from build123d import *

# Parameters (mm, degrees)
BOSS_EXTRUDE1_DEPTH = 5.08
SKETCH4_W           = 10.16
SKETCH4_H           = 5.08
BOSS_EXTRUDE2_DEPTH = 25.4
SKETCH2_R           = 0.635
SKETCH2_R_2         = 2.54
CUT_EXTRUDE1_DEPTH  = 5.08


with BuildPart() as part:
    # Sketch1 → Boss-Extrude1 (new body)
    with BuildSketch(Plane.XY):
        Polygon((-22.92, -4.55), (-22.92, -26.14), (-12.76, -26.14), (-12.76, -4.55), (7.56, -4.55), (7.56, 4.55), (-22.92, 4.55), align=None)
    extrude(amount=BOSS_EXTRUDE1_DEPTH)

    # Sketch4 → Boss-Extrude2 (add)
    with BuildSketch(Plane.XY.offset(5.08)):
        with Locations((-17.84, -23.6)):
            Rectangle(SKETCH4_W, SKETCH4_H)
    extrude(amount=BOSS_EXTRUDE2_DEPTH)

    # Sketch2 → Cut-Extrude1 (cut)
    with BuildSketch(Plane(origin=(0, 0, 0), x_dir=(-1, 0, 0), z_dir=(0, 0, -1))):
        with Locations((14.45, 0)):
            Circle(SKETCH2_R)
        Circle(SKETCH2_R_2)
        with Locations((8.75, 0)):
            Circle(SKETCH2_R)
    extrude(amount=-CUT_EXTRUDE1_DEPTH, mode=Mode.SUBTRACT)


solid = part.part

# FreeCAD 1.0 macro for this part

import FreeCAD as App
import Part
import Sketcher
from FreeCAD import Vector
Q = App.Units.Quantity


def add_polygon(sketch, points):
    """Adds a closed chain of lines whose ends are joined by coincident constraints."""
    first, n = sketch.GeometryCount, len(points)
    for a, b in zip(points, points[1:] + points[:1]):
        sketch.addGeometry(Part.LineSegment(App.Vector(*a, 0), App.Vector(*b, 0)), False)
    for i in range(n):
        sketch.addConstraint(Sketcher.Constraint("Coincident", first + i, 2, first + (i + 1) % n, 1))

doc = App.newDocument("Part")
body = doc.addObject("PartDesign::Body", "Body")

sketch1 = body.newObject("Sketcher::SketchObject", "Sketch")
sketch1.AttachmentSupport = (doc.getObject("XY_Plane"), [""])
sketch1.MapMode = "FlatFace"
add_polygon(sketch1, [(-23, -26), (-13, -26), (-13, -5), (8, -5), (8, 5), (-23, 5)])
sketch1.addConstraint(Sketcher.Constraint("Horizontal", 0))
sketch1.addConstraint(Sketcher.Constraint("Vertical", 1))
sketch1.addConstraint(Sketcher.Constraint("Horizontal", 2))
sketch1.addConstraint(Sketcher.Constraint("Vertical", 3))
sketch1.addConstraint(Sketcher.Constraint("Horizontal", 4))
sketch1.addConstraint(Sketcher.Constraint("Vertical", 5))
sketch1.addConstraint(Sketcher.Constraint("DistanceX", 0, 1, 0, 2, Q("0.4 in")))
sketch1.addConstraint(Sketcher.Constraint("DistanceX", 2, 1, 2, 2, Q("0.8 in")))
sketch1.addConstraint(Sketcher.Constraint("DistanceY", 1, 1, 1, 2, Q("0.85 in")))
sketch1.addConstraint(Sketcher.Constraint("DistanceY", 3, 1, 3, 2, Q("9.1 mm")))
sketch1.addConstraint(Sketcher.Constraint("DistanceX", 0, 2, -1, 1, Q("12.76 mm")))
sketch1.addConstraint(Sketcher.Constraint("DistanceY", 0, 2, -1, 1, Q("26.14 mm")))
pad1 = body.newObject("PartDesign::Pad", "Pad")
pad1.Profile = sketch1
pad1.Length = Q("0.2 in")

sketch2 = body.newObject("Sketcher::SketchObject", "Sketch001")
sketch2.AttachmentSupport = (doc.getObject("XY_Plane"), [""])
sketch2.MapMode = "FlatFace"
sketch2.AttachmentOffset = App.Placement(Vector(0, 0, 0.2 * 25.4), App.Rotation())
add_polygon(sketch2, [(-23, -21), (-23, -26), (-13, -26), (-13, -21)])
sketch2.addConstraint(Sketcher.Constraint("Vertical", 0))
sketch2.addConstraint(Sketcher.Constraint("Horizontal", 1))
sketch2.addConstraint(Sketcher.Constraint("Vertical", 2))
sketch2.addConstraint(Sketcher.Constraint("Horizontal", 3))
sketch2.addConstraint(Sketcher.Constraint("DistanceX", 1, 1, 1, 2, Q("0.4 in")))
sketch2.addConstraint(Sketcher.Constraint("DistanceY", 0, 2, 0, 1, Q("0.2 in")))
sketch2.addConstraint(Sketcher.Constraint("DistanceX", 0, 2, -1, 1, Q("22.92 mm")))
sketch2.addConstraint(Sketcher.Constraint("DistanceY", 0, 2, -1, 1, Q("26.14 mm")))
pad2 = body.newObject("PartDesign::Pad", "Pad001")
pad2.Profile = sketch2
pad2.Length = Q("1 in")

sketch3 = body.newObject("Sketcher::SketchObject", "Sketch002")
sketch3.AttachmentSupport = (doc.getObject("XY_Plane"), [""])
sketch3.MapMode = "FlatFace"
sketch3.addGeometry(Part.Circle(Vector(-14.4, 0, 0), Vector(0, 0, 1), 0.6), False)
sketch3.addGeometry(Part.Circle(Vector(0, 0, 0), Vector(0, 0, 1), 2.5), False)
sketch3.addGeometry(Part.Circle(Vector(-8.8, 0, 0), Vector(0, 0, 1), 0.6), False)
sketch3.addConstraint(Sketcher.Constraint("Coincident", 1, 3, -1, 1))
sketch3.addConstraint(Sketcher.Constraint("Equal", 0, 2))
sketch3.addConstraint(Sketcher.Constraint("PointOnObject", 0, 3, -1))
sketch3.addConstraint(Sketcher.Constraint("PointOnObject", 2, 3, -1))
sketch3.addConstraint(Sketcher.Constraint("Diameter", 1, Q("0.2 in")))
sketch3.addConstraint(Sketcher.Constraint("Diameter", 0, Q("0.05 in")))
sketch3.addConstraint(Sketcher.Constraint("DistanceX", 0, 3, -1, 1, Q("14.45 mm")))
sketch3.addConstraint(Sketcher.Constraint("DistanceX", 2, 3, -1, 1, Q("8.75 mm")))
pocket1 = body.newObject("PartDesign::Pocket", "Pocket")
pocket1.Profile = sketch3
pocket1.Length = Q("0.2 in")
pocket1.Reversed = True

doc.recompute()
